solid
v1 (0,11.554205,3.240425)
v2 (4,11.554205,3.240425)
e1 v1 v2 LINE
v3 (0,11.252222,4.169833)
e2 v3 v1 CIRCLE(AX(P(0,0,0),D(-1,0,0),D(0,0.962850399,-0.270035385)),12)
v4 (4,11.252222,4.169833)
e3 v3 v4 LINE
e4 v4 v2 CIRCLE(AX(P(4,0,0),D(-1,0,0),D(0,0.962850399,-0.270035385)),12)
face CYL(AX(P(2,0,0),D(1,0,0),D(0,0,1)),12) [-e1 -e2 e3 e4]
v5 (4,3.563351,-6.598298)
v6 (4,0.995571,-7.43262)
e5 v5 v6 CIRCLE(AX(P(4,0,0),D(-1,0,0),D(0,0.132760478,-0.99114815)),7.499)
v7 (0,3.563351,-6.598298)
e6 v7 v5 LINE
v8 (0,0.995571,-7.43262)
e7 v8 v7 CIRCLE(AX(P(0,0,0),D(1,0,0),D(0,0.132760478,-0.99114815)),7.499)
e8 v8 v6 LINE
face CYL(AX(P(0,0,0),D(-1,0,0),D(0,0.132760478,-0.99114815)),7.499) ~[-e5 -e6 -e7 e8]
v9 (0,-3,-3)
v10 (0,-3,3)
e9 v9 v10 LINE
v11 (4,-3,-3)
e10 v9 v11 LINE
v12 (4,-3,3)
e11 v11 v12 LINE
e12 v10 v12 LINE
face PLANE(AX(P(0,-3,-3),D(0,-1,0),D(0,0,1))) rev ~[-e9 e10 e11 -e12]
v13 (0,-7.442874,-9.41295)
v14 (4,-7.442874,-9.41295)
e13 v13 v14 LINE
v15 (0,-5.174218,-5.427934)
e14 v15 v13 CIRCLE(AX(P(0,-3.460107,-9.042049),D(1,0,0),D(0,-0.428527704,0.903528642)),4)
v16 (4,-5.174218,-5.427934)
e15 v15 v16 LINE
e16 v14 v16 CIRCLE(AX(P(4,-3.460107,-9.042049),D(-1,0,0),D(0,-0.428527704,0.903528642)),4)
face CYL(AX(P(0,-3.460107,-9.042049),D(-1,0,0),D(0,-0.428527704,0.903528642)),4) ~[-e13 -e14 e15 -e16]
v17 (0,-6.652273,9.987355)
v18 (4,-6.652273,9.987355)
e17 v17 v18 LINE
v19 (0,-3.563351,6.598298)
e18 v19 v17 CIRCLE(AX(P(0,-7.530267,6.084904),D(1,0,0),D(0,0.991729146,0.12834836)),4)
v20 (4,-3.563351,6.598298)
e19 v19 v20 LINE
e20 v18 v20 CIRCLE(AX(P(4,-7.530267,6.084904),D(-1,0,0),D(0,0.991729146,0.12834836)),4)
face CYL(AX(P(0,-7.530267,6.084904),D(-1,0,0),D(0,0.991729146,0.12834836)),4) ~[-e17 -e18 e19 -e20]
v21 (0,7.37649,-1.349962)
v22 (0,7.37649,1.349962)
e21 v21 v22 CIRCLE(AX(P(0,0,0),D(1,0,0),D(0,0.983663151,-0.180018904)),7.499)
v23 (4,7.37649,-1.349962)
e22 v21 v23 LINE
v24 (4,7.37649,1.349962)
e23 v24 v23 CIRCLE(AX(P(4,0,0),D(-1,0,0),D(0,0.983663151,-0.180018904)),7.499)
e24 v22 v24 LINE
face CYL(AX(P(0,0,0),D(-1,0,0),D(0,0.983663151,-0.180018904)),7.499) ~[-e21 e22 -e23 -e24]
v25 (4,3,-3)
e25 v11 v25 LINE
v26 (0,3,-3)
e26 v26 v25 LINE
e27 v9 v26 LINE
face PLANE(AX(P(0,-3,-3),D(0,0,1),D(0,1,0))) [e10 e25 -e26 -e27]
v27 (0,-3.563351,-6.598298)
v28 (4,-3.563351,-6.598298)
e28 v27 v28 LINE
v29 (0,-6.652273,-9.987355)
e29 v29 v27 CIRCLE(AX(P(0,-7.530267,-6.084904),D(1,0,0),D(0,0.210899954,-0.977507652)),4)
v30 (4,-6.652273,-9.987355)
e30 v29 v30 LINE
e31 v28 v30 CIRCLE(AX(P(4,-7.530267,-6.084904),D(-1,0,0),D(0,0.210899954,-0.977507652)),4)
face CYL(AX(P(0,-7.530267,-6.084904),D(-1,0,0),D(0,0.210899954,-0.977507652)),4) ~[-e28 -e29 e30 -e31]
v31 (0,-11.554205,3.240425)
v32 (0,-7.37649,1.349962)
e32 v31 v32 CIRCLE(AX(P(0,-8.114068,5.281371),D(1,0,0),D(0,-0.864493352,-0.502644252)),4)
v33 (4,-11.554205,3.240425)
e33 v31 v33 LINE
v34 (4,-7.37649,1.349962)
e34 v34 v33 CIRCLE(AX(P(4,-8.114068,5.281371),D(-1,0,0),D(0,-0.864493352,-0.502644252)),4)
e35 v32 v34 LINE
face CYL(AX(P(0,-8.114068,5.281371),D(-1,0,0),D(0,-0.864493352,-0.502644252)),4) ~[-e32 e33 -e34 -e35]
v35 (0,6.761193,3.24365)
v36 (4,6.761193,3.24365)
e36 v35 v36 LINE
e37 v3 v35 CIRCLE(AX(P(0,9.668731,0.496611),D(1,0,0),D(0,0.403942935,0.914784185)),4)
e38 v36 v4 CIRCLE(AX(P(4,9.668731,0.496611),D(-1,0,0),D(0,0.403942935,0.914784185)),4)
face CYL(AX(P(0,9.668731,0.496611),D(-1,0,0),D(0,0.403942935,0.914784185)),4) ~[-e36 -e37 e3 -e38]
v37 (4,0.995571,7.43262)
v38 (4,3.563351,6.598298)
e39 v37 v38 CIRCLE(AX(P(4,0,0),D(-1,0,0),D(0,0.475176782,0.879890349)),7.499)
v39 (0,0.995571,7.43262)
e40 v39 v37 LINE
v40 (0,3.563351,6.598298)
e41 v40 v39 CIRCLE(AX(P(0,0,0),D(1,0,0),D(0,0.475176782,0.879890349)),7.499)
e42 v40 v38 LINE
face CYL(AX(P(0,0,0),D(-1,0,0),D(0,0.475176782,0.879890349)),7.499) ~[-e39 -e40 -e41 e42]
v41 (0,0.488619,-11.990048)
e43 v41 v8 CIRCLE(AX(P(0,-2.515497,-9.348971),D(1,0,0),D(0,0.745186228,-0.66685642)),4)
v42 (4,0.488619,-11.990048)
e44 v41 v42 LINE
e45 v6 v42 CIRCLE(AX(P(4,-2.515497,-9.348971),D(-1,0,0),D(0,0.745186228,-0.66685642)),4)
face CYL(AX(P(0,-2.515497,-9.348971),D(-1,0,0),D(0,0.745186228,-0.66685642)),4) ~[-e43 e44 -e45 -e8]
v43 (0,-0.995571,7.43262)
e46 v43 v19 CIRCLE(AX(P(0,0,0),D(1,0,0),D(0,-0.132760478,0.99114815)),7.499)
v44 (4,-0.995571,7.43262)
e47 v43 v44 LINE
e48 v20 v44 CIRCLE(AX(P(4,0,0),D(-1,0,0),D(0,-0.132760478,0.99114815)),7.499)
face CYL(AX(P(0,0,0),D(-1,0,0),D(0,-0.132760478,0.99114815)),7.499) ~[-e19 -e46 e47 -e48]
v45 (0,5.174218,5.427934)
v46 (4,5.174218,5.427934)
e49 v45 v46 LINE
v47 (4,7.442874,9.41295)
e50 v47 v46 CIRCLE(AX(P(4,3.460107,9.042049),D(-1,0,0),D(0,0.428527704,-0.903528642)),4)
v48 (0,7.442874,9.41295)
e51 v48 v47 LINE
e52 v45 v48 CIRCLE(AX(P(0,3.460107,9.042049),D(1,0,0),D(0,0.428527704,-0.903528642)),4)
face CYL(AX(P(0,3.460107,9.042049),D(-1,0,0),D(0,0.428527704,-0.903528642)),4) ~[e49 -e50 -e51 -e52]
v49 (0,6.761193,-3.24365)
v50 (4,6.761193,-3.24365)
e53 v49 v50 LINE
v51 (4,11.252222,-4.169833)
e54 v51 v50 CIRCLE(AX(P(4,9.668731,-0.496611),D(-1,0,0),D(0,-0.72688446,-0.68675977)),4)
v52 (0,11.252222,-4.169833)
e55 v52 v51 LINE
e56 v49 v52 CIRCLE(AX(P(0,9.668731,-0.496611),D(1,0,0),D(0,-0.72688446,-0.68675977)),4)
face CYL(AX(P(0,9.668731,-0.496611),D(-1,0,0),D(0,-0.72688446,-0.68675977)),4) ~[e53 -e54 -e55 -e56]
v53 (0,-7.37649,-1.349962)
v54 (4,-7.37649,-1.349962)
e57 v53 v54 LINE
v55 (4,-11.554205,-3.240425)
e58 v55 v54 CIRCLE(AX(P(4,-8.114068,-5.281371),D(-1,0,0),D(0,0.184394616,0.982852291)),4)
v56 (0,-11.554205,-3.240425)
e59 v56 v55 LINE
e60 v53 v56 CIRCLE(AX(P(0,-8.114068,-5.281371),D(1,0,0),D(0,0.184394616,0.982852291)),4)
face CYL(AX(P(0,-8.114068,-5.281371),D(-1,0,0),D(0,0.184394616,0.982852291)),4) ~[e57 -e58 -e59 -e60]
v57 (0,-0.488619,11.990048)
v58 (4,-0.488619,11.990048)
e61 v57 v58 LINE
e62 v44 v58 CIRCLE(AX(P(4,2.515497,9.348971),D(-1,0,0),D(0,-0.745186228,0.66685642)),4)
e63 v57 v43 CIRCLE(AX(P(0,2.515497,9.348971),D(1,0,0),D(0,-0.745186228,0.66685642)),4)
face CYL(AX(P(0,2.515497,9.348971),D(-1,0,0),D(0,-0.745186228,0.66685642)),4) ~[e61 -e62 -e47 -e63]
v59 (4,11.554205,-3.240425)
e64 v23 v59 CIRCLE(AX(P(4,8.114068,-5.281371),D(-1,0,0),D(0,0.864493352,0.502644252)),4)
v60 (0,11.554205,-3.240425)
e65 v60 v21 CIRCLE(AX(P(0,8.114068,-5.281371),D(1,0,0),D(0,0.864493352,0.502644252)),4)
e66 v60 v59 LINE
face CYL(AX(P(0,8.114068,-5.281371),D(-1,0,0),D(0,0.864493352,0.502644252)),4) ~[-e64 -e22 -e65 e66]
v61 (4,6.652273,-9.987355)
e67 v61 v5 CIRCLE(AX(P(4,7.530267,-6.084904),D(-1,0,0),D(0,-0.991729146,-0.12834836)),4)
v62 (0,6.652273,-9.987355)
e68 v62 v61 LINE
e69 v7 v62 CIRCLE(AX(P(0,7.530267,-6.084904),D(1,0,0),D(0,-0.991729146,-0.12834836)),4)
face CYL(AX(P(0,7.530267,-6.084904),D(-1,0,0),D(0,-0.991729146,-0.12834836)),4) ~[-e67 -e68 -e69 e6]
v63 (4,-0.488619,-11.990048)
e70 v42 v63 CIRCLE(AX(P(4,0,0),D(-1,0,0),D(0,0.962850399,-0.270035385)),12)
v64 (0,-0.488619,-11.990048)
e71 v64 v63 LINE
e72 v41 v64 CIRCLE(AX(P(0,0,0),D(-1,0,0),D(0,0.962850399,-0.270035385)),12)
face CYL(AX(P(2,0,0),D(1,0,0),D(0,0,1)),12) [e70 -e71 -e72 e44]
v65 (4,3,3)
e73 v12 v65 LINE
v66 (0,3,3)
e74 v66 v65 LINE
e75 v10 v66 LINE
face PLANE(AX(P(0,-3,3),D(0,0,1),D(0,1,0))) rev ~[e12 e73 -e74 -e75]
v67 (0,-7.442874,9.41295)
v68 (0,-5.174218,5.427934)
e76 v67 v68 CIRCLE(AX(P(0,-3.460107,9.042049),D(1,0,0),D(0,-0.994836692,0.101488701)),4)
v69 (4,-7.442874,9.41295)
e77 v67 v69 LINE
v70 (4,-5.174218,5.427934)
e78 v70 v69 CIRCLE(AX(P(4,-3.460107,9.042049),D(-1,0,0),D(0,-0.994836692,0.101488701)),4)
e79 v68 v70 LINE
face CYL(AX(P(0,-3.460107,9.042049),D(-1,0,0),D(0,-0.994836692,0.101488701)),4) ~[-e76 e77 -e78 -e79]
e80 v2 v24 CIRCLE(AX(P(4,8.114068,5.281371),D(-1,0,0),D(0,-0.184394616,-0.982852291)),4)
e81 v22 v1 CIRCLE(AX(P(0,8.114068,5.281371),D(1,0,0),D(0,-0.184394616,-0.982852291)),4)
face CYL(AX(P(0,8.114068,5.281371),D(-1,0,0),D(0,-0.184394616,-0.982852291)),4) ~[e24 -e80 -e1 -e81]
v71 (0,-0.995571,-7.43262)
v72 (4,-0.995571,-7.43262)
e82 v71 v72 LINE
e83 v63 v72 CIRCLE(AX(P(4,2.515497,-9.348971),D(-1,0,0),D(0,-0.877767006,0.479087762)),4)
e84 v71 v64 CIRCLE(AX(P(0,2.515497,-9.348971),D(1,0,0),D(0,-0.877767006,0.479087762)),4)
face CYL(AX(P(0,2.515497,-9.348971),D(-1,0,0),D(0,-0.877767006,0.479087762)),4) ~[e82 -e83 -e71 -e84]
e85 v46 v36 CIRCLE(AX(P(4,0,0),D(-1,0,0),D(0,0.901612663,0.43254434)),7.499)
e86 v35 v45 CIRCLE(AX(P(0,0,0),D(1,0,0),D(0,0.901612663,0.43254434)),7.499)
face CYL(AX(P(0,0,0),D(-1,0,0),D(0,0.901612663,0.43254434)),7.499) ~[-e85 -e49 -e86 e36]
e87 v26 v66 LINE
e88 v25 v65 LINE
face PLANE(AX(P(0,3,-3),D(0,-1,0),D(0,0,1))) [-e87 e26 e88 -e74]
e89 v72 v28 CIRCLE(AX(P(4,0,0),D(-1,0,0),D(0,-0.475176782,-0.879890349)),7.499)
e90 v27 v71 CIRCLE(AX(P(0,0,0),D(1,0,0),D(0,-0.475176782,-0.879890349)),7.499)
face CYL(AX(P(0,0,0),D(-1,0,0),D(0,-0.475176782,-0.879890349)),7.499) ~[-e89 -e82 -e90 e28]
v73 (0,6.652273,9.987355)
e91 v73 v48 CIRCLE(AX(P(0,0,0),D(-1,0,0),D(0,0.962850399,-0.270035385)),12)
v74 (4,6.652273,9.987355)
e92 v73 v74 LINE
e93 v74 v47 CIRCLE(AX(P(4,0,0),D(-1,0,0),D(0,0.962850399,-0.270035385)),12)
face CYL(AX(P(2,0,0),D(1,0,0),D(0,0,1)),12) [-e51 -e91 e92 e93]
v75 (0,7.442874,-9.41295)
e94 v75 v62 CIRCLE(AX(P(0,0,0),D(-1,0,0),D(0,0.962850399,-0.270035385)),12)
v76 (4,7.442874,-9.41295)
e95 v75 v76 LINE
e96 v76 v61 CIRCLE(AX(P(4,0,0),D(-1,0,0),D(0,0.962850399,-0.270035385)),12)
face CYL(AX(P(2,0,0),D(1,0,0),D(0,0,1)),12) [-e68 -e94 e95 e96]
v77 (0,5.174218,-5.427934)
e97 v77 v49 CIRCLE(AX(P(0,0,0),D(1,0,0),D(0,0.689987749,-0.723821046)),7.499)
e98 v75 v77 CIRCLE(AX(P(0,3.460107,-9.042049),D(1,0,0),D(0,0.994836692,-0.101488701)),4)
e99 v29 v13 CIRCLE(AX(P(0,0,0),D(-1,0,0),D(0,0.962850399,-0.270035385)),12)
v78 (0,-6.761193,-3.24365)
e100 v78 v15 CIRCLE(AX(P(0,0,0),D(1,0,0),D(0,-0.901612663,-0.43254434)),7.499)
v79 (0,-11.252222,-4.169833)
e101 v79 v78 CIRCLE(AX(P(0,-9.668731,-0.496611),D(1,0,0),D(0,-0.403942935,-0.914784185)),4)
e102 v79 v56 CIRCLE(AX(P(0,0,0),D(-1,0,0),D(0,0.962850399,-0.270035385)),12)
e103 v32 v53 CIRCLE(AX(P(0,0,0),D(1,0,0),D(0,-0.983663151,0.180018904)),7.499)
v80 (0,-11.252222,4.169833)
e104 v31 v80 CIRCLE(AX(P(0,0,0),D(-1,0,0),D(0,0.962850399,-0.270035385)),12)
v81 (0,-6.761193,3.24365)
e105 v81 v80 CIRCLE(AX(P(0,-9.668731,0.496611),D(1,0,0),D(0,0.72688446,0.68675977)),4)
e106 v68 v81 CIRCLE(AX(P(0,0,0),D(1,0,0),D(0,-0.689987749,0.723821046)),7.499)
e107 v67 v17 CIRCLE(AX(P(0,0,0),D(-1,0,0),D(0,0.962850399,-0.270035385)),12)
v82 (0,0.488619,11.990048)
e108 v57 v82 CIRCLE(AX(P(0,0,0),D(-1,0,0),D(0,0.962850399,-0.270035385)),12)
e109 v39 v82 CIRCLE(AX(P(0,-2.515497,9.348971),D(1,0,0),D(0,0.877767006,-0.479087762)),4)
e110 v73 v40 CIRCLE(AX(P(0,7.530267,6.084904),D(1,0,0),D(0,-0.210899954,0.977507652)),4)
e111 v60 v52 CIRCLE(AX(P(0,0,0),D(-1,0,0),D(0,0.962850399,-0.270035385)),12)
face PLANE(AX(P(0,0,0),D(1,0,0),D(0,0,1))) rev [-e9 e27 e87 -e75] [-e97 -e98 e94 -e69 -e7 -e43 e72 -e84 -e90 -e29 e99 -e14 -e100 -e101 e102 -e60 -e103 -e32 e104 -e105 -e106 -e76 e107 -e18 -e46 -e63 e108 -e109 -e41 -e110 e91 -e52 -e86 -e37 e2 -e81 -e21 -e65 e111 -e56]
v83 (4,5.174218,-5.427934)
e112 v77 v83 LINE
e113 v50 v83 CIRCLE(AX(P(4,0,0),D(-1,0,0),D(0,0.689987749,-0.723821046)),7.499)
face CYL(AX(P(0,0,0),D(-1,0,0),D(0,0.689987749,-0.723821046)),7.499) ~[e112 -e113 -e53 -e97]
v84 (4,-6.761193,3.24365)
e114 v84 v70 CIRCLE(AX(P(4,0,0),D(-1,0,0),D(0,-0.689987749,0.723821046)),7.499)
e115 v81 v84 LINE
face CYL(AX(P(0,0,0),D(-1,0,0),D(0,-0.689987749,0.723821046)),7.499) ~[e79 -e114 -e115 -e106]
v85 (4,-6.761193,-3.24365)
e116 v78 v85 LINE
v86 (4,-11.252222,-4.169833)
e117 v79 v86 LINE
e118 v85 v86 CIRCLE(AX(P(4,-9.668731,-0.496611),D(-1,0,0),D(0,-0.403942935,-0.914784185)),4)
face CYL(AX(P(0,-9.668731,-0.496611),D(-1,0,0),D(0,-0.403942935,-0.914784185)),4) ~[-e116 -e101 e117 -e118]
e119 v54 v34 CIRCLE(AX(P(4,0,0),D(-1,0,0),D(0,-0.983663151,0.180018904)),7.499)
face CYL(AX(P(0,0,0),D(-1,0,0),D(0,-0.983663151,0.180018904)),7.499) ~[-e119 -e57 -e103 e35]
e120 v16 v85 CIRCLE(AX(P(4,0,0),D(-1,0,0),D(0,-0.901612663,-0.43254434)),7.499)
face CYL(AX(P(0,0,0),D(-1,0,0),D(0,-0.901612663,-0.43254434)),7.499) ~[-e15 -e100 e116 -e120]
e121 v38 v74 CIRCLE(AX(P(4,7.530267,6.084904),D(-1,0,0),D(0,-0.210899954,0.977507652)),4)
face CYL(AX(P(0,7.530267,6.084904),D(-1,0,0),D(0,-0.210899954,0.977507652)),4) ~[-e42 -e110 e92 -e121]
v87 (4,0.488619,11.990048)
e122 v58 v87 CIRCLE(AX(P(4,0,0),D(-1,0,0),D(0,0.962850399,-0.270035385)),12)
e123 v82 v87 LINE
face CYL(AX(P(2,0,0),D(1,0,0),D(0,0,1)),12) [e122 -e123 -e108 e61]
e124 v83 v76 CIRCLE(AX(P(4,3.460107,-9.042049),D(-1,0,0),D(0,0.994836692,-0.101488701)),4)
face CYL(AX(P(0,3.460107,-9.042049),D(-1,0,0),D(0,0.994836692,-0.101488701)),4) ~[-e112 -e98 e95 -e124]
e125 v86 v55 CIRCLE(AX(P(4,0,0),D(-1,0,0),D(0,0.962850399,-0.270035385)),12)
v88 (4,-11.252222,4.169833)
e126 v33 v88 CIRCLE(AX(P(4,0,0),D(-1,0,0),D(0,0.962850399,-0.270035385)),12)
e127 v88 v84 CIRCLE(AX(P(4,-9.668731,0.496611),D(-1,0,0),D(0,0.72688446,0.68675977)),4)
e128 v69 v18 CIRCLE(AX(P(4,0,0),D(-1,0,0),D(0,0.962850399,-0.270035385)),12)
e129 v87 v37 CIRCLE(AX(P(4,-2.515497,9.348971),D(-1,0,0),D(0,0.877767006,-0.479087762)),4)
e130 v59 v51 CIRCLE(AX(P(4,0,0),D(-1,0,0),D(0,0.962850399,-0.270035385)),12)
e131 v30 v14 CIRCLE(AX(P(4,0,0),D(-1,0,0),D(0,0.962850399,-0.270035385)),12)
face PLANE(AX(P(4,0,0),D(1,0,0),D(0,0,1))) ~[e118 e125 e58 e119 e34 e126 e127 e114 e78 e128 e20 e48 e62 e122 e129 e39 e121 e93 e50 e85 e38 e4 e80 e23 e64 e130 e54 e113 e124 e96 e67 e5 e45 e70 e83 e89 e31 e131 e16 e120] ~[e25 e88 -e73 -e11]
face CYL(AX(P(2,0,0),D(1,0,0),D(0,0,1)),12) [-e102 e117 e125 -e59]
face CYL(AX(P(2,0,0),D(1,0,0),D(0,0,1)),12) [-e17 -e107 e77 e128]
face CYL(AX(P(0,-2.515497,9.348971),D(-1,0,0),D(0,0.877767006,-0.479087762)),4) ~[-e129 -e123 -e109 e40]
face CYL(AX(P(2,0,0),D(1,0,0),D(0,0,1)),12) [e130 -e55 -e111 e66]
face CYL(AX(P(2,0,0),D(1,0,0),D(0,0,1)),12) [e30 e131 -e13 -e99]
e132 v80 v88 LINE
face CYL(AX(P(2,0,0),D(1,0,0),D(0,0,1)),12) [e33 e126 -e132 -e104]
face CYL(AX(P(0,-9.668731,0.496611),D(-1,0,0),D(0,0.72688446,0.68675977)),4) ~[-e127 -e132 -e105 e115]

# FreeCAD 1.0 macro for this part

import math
import FreeCAD as App
import Part
import Sketcher
from FreeCAD import Vector
Q = App.Units.Quantity

doc = App.newDocument("Part")
params = doc.addObject("Spreadsheet::Sheet", "Params")
for row, (alias, value) in enumerate([
    ("sketch1_width", "4 mm"),
    ("sketch1_height", "12 mm"),
    ("revolution_angle", "360 deg"),
    ("sketch2_radius", "4 mm"),
    ("sketch3_diameter", "2 mm"),
    ("pocket2_length", "100.000102 mm"),
    ("sketch4_width", "6 mm"),
], start=1):
    params.set(f"A{row}", alias)
    params.set(f"B{row}", "=" + value)
    params.setAlias(f"B{row}", alias)

body = doc.addObject("PartDesign::Body", "Body")

# Sketch on XZ plane
sketch1 = doc.addObject("Sketcher::SketchObject", "Sketch")
body.addObject(sketch1)
sketch1.AttachmentSupport = (doc.XZ_Plane, [""])
sketch1.MapMode = "FlatFace"
sketch1.addGeometry([
    Part.LineSegment(Vector(0, -12, 0), Vector(0, 0, 0)),
    Part.LineSegment(Vector(0, 0, 0), Vector(4, 0, 0)),
    Part.LineSegment(Vector(4, 0, 0), Vector(4, -12, 0)),
    Part.LineSegment(Vector(4, -12, 0), Vector(0, -12, 0)),
], False)
sketch1.addConstraint([
    Sketcher.Constraint("Coincident", 0, 2, 1, 1),
    Sketcher.Constraint("Coincident", 1, 2, 2, 1),
    Sketcher.Constraint("Coincident", 2, 2, 3, 1),
    Sketcher.Constraint("Coincident", 3, 2, 0, 1),
    Sketcher.Constraint("Vertical", 0),
    Sketcher.Constraint("Horizontal", 1),
    Sketcher.Constraint("Vertical", 2),
    Sketcher.Constraint("Horizontal", 3),
    Sketcher.Constraint("Coincident", 0, 2, -1, 1),
    Sketcher.Constraint("DistanceX", 1, 1, 1, 2, Q("4 mm")),
    Sketcher.Constraint("DistanceY", 0, 1, 0, 2, Q("12 mm")),
])
sketch1.setExpression("Constraints[9]", "Params.sketch1_width")
sketch1.setExpression("Constraints[10]", "Params.sketch1_height")
revolution = doc.addObject("PartDesign::Revolution", "Revolution")
body.addObject(revolution)
revolution.Profile = sketch1
revolution.ReferenceAxis = (sketch1, ["H_Axis"])
revolution.setExpression("Angle", "Params.revolution_angle")

# Sketch on YZ plane
sketch2 = doc.addObject("Sketcher::SketchObject", "Sketch001")
body.addObject(sketch2)
sketch2.AttachmentSupport = (doc.YZ_Plane, [""])
sketch2.MapMode = "FlatFace"
sketch2.addGeometry([
    Part.ArcOfCircle(Part.Circle(Vector(0, 0, 0), Vector(0, 0, 1), 7.5), math.radians(-10), math.radians(10)),
    Part.ArcOfCircle(Part.Circle(Vector(8.1, -5.3, 0), Vector(0, 0, 1), 4), math.radians(30), math.radians(101)),
    Part.ArcOfCircle(Part.Circle(Vector(0, 0, 0), Vector(0, 0, 1), 12), math.radians(-16), math.radians(16)),
    Part.ArcOfCircle(Part.Circle(Vector(8.1, 5.3, 0), Vector(0, 0, 1), 4), math.radians(-101), math.radians(-30)),
], False)
sketch2.addConstraint([
    Sketcher.Constraint("Coincident", 0, 1, 1, 2),
    Sketcher.Constraint("Coincident", 1, 1, 2, 1),
    Sketcher.Constraint("Coincident", 2, 2, 3, 2),
    Sketcher.Constraint("Coincident", 3, 1, 0, 2),
    Sketcher.Constraint("Coincident", 0, 3, -1, 1),
    Sketcher.Constraint("Coincident", 2, 3, -1, 1),
    Sketcher.Constraint("Equal", 1, 3),
    Sketcher.Constraint("Symmetric", 1, 3, 3, 3, -1),
    Sketcher.Constraint("Radius", 1, Q("4 mm")),
    Sketcher.Constraint("Radius", 0, Q("7.499 mm")),
    Sketcher.Constraint("Radius", 2, Q("12.0254 mm")),
    Sketcher.Constraint("DistanceX", -1, 1, 1, 3, Q("8.114068 mm")),
    Sketcher.Constraint("DistanceY", 1, 3, -1, 1, Q("5.281371 mm")),
])
sketch2.setExpression("Constraints[8]", "Params.sketch2_radius")
pocket1 = doc.addObject("PartDesign::Pocket", "Pocket")
body.addObject(pocket1)
pocket1.Profile = sketch2
pocket1.Type = "ThroughAll"
pocket1.Reversed = True
doc.recompute()

polarpattern = doc.addObject("PartDesign::PolarPattern", "PolarPattern")
body.addObject(polarpattern)
polarpattern.Originals = [pocket1]
polarpattern.Axis = (doc.X_Axis, [""])
polarpattern.Angle = 360
polarpattern.Occurrences = 10
body.Tip = polarpattern

# Sketch on YZ plane
sketch3 = doc.addObject("Sketcher::SketchObject", "Sketch002")
body.addObject(sketch3)
sketch3.AttachmentSupport = (doc.YZ_Plane, [""])
sketch3.MapMode = "FlatFace"
sketch3.addGeometry(Part.Circle(Vector(0, 0, 0), Vector(0, 0, 1), 1), False)
sketch3.addConstraint([
    Sketcher.Constraint("Coincident", 0, 3, -1, 1),
    Sketcher.Constraint("Diameter", 0, Q("2 mm")),
])
sketch3.setExpression("Constraints[1]", "Params.sketch3_diameter")
pocket2 = doc.addObject("PartDesign::Pocket", "Pocket001")
body.addObject(pocket2)
pocket2.Profile = sketch3
pocket2.setExpression("Length", "Params.pocket2_length")
pocket2.Midplane = True

# Sketch on YZ plane
sketch4 = doc.addObject("Sketcher::SketchObject", "Sketch003")
body.addObject(sketch4)
sketch4.AttachmentSupport = (doc.YZ_Plane, [""])
sketch4.MapMode = "FlatFace"
sketch4.addGeometry([
    Part.LineSegment(Vector(3, -3, 0), Vector(-3, -3, 0)),
    Part.LineSegment(Vector(-3, -3, 0), Vector(-3, 3, 0)),
    Part.LineSegment(Vector(-3, 3, 0), Vector(3, 3, 0)),
    Part.LineSegment(Vector(3, 3, 0), Vector(3, -3, 0)),
], False)
sketch4.addConstraint([
    Sketcher.Constraint("Coincident", 0, 2, 1, 1),
    Sketcher.Constraint("Coincident", 1, 2, 2, 1),
    Sketcher.Constraint("Coincident", 2, 2, 3, 1),
    Sketcher.Constraint("Coincident", 3, 2, 0, 1),
    Sketcher.Constraint("Horizontal", 0),
    Sketcher.Constraint("Vertical", 1),
    Sketcher.Constraint("Horizontal", 2),
    Sketcher.Constraint("Vertical", 3),
    Sketcher.Constraint("Symmetric", 0, 2, 2, 2, -1, 1),
    Sketcher.Constraint("Equal", 2, 1),
    Sketcher.Constraint("DistanceX", 0, 2, 0, 1, Q("6 mm")),
])
sketch4.setExpression("Constraints[10]", "Params.sketch4_width")
pocket3 = doc.addObject("PartDesign::Pocket", "Pocket002")
body.addObject(pocket3)
pocket3.Profile = sketch4
pocket3.Type = "ThroughAll"
pocket3.Reversed = True

doc.recompute()
